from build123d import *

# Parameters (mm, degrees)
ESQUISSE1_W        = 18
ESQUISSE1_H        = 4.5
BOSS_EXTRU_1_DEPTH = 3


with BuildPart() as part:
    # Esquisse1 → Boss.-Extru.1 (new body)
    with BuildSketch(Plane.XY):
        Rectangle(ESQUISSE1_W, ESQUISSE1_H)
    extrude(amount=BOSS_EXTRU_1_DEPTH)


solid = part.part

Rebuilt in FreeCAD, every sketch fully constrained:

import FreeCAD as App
import Part
import Sketcher

doc = App.newDocument("Part")
body = doc.addObject("PartDesign::Body", "Body")

sketch1 = body.newObject("Sketcher::SketchObject", "Sketch")
sketch1.AttachmentSupport = (doc.getObject("XY_Plane"), [""])
sketch1.MapMode = "FlatFace"
sketch1.addGeometry([
    Part.LineSegment(App.Vector(-9, 2.2, 0), App.Vector(-9, -2.2, 0)),
    Part.LineSegment(App.Vector(-9, -2.2, 0), App.Vector(9, -2.2, 0)),
    Part.LineSegment(App.Vector(9, -2.2, 0), App.Vector(9, 2.2, 0)),
    Part.LineSegment(App.Vector(9, 2.2, 0), App.Vector(-9, 2.2, 0)),
], False)
sketch1.addConstraint([
    Sketcher.Constraint("Coincident", 0, 2, 1, 1),
    Sketcher.Constraint("Coincident", 1, 2, 2, 1),
    Sketcher.Constraint("Coincident", 2, 2, 3, 1),
    Sketcher.Constraint("Coincident", 3, 2, 0, 1),
    Sketcher.Constraint("Vertical", 0),
    Sketcher.Constraint("Horizontal", 1),
    Sketcher.Constraint("Vertical", 2),
    Sketcher.Constraint("Horizontal", 3),
    Sketcher.Constraint("Symmetric", 0, 2, 2, 2, -1, 1),
    Sketcher.Constraint("DistanceX", 1, 1, 1, 2, 18.0),
    Sketcher.Constraint("DistanceY", 0, 2, 0, 1, 4.5),
])
pad1 = body.newObject("PartDesign::Pad", "Pad")
pad1.Profile = sketch1
pad1.Length = 3

doc.recompute()
